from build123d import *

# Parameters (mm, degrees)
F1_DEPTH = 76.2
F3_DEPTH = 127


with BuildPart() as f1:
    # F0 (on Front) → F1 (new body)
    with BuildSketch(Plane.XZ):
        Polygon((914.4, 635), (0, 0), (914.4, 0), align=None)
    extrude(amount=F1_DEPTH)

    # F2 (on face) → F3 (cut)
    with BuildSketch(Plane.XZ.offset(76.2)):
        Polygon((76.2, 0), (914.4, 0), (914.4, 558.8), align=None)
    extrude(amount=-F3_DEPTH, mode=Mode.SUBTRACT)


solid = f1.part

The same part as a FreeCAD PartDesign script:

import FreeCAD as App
import Part
import Sketcher
from FreeCAD import Vector
Q = App.Units.Quantity

doc = App.newDocument("Part")
body = doc.addObject("PartDesign::Body", "Body")

sketch1 = doc.addObject("Sketcher::SketchObject", "Sketch")
body.addObject(sketch1)
sketch1.AttachmentSupport = (doc.XZ_Plane, [""])
sketch1.MapMode = "FlatFace"
sketch1.addGeometry([
    Part.LineSegment(Vector(914, 635, 0), Vector(0, 0, 0)),
    Part.LineSegment(Vector(0, 0, 0), Vector(914, 0, 0)),
    Part.LineSegment(Vector(914, 0, 0), Vector(914, 635, 0)),
], False)
sketch1.addConstraint([
    Sketcher.Constraint("Coincident", 0, 2, 1, 1),
    Sketcher.Constraint("Coincident", 1, 2, 2, 1),
    Sketcher.Constraint("Coincident", 2, 2, 0, 1),
    Sketcher.Constraint("Horizontal", 1),
    Sketcher.Constraint("Vertical", 2),
    Sketcher.Constraint("Coincident", 0, 2, -1, 1),
    Sketcher.Constraint("DistanceX", 1, 1, 1, 2, Q("36 in")),
    Sketcher.Constraint("DistanceY", 2, 1, 2, 2, Q("25 in")),
])
pad1 = doc.addObject("PartDesign::Pad", "Pad")
body.addObject(pad1)
pad1.Profile = sketch1
pad1.Length = Q("3 in")

sketch2 = doc.addObject("Sketcher::SketchObject", "Sketch001")
body.addObject(sketch2)
sketch2.AttachmentSupport = (doc.XZ_Plane, [""])
sketch2.MapMode = "FlatFace"
sketch2.AttachmentOffset = App.Placement(Vector(0, 0, 3 * 25.4), App.Rotation())
sketch2.addGeometry([
    Part.LineSegment(Vector(76, 0, 0), Vector(914, 0, 0)),
    Part.LineSegment(Vector(914, 0, 0), Vector(914, 559, 0)),
    Part.LineSegment(Vector(914, 559, 0), Vector(76, 0, 0)),
], False)
sketch2.addConstraint([
    Sketcher.Constraint("Coincident", 0, 2, 1, 1),
    Sketcher.Constraint("Coincident", 1, 2, 2, 1),
    Sketcher.Constraint("Coincident", 2, 2, 0, 1),
    Sketcher.Constraint("Horizontal", 0),
    Sketcher.Constraint("Vertical", 1),
    Sketcher.Constraint("PointOnObject", 0, 2, -1),
    Sketcher.Constraint("DistanceX", 0, 1, 0, 2, Q("33 in")),
    Sketcher.Constraint("DistanceY", 1, 1, 1, 2, Q("22 in")),
    Sketcher.Constraint("DistanceX", -1, 1, 0, 2, Q("36 in")),
])
pocket1 = doc.addObject("PartDesign::Pocket", "Pocket")
body.addObject(pocket1)
pocket1.Profile = sketch2
pocket1.Length = Q("5 in")

doc.recompute()
